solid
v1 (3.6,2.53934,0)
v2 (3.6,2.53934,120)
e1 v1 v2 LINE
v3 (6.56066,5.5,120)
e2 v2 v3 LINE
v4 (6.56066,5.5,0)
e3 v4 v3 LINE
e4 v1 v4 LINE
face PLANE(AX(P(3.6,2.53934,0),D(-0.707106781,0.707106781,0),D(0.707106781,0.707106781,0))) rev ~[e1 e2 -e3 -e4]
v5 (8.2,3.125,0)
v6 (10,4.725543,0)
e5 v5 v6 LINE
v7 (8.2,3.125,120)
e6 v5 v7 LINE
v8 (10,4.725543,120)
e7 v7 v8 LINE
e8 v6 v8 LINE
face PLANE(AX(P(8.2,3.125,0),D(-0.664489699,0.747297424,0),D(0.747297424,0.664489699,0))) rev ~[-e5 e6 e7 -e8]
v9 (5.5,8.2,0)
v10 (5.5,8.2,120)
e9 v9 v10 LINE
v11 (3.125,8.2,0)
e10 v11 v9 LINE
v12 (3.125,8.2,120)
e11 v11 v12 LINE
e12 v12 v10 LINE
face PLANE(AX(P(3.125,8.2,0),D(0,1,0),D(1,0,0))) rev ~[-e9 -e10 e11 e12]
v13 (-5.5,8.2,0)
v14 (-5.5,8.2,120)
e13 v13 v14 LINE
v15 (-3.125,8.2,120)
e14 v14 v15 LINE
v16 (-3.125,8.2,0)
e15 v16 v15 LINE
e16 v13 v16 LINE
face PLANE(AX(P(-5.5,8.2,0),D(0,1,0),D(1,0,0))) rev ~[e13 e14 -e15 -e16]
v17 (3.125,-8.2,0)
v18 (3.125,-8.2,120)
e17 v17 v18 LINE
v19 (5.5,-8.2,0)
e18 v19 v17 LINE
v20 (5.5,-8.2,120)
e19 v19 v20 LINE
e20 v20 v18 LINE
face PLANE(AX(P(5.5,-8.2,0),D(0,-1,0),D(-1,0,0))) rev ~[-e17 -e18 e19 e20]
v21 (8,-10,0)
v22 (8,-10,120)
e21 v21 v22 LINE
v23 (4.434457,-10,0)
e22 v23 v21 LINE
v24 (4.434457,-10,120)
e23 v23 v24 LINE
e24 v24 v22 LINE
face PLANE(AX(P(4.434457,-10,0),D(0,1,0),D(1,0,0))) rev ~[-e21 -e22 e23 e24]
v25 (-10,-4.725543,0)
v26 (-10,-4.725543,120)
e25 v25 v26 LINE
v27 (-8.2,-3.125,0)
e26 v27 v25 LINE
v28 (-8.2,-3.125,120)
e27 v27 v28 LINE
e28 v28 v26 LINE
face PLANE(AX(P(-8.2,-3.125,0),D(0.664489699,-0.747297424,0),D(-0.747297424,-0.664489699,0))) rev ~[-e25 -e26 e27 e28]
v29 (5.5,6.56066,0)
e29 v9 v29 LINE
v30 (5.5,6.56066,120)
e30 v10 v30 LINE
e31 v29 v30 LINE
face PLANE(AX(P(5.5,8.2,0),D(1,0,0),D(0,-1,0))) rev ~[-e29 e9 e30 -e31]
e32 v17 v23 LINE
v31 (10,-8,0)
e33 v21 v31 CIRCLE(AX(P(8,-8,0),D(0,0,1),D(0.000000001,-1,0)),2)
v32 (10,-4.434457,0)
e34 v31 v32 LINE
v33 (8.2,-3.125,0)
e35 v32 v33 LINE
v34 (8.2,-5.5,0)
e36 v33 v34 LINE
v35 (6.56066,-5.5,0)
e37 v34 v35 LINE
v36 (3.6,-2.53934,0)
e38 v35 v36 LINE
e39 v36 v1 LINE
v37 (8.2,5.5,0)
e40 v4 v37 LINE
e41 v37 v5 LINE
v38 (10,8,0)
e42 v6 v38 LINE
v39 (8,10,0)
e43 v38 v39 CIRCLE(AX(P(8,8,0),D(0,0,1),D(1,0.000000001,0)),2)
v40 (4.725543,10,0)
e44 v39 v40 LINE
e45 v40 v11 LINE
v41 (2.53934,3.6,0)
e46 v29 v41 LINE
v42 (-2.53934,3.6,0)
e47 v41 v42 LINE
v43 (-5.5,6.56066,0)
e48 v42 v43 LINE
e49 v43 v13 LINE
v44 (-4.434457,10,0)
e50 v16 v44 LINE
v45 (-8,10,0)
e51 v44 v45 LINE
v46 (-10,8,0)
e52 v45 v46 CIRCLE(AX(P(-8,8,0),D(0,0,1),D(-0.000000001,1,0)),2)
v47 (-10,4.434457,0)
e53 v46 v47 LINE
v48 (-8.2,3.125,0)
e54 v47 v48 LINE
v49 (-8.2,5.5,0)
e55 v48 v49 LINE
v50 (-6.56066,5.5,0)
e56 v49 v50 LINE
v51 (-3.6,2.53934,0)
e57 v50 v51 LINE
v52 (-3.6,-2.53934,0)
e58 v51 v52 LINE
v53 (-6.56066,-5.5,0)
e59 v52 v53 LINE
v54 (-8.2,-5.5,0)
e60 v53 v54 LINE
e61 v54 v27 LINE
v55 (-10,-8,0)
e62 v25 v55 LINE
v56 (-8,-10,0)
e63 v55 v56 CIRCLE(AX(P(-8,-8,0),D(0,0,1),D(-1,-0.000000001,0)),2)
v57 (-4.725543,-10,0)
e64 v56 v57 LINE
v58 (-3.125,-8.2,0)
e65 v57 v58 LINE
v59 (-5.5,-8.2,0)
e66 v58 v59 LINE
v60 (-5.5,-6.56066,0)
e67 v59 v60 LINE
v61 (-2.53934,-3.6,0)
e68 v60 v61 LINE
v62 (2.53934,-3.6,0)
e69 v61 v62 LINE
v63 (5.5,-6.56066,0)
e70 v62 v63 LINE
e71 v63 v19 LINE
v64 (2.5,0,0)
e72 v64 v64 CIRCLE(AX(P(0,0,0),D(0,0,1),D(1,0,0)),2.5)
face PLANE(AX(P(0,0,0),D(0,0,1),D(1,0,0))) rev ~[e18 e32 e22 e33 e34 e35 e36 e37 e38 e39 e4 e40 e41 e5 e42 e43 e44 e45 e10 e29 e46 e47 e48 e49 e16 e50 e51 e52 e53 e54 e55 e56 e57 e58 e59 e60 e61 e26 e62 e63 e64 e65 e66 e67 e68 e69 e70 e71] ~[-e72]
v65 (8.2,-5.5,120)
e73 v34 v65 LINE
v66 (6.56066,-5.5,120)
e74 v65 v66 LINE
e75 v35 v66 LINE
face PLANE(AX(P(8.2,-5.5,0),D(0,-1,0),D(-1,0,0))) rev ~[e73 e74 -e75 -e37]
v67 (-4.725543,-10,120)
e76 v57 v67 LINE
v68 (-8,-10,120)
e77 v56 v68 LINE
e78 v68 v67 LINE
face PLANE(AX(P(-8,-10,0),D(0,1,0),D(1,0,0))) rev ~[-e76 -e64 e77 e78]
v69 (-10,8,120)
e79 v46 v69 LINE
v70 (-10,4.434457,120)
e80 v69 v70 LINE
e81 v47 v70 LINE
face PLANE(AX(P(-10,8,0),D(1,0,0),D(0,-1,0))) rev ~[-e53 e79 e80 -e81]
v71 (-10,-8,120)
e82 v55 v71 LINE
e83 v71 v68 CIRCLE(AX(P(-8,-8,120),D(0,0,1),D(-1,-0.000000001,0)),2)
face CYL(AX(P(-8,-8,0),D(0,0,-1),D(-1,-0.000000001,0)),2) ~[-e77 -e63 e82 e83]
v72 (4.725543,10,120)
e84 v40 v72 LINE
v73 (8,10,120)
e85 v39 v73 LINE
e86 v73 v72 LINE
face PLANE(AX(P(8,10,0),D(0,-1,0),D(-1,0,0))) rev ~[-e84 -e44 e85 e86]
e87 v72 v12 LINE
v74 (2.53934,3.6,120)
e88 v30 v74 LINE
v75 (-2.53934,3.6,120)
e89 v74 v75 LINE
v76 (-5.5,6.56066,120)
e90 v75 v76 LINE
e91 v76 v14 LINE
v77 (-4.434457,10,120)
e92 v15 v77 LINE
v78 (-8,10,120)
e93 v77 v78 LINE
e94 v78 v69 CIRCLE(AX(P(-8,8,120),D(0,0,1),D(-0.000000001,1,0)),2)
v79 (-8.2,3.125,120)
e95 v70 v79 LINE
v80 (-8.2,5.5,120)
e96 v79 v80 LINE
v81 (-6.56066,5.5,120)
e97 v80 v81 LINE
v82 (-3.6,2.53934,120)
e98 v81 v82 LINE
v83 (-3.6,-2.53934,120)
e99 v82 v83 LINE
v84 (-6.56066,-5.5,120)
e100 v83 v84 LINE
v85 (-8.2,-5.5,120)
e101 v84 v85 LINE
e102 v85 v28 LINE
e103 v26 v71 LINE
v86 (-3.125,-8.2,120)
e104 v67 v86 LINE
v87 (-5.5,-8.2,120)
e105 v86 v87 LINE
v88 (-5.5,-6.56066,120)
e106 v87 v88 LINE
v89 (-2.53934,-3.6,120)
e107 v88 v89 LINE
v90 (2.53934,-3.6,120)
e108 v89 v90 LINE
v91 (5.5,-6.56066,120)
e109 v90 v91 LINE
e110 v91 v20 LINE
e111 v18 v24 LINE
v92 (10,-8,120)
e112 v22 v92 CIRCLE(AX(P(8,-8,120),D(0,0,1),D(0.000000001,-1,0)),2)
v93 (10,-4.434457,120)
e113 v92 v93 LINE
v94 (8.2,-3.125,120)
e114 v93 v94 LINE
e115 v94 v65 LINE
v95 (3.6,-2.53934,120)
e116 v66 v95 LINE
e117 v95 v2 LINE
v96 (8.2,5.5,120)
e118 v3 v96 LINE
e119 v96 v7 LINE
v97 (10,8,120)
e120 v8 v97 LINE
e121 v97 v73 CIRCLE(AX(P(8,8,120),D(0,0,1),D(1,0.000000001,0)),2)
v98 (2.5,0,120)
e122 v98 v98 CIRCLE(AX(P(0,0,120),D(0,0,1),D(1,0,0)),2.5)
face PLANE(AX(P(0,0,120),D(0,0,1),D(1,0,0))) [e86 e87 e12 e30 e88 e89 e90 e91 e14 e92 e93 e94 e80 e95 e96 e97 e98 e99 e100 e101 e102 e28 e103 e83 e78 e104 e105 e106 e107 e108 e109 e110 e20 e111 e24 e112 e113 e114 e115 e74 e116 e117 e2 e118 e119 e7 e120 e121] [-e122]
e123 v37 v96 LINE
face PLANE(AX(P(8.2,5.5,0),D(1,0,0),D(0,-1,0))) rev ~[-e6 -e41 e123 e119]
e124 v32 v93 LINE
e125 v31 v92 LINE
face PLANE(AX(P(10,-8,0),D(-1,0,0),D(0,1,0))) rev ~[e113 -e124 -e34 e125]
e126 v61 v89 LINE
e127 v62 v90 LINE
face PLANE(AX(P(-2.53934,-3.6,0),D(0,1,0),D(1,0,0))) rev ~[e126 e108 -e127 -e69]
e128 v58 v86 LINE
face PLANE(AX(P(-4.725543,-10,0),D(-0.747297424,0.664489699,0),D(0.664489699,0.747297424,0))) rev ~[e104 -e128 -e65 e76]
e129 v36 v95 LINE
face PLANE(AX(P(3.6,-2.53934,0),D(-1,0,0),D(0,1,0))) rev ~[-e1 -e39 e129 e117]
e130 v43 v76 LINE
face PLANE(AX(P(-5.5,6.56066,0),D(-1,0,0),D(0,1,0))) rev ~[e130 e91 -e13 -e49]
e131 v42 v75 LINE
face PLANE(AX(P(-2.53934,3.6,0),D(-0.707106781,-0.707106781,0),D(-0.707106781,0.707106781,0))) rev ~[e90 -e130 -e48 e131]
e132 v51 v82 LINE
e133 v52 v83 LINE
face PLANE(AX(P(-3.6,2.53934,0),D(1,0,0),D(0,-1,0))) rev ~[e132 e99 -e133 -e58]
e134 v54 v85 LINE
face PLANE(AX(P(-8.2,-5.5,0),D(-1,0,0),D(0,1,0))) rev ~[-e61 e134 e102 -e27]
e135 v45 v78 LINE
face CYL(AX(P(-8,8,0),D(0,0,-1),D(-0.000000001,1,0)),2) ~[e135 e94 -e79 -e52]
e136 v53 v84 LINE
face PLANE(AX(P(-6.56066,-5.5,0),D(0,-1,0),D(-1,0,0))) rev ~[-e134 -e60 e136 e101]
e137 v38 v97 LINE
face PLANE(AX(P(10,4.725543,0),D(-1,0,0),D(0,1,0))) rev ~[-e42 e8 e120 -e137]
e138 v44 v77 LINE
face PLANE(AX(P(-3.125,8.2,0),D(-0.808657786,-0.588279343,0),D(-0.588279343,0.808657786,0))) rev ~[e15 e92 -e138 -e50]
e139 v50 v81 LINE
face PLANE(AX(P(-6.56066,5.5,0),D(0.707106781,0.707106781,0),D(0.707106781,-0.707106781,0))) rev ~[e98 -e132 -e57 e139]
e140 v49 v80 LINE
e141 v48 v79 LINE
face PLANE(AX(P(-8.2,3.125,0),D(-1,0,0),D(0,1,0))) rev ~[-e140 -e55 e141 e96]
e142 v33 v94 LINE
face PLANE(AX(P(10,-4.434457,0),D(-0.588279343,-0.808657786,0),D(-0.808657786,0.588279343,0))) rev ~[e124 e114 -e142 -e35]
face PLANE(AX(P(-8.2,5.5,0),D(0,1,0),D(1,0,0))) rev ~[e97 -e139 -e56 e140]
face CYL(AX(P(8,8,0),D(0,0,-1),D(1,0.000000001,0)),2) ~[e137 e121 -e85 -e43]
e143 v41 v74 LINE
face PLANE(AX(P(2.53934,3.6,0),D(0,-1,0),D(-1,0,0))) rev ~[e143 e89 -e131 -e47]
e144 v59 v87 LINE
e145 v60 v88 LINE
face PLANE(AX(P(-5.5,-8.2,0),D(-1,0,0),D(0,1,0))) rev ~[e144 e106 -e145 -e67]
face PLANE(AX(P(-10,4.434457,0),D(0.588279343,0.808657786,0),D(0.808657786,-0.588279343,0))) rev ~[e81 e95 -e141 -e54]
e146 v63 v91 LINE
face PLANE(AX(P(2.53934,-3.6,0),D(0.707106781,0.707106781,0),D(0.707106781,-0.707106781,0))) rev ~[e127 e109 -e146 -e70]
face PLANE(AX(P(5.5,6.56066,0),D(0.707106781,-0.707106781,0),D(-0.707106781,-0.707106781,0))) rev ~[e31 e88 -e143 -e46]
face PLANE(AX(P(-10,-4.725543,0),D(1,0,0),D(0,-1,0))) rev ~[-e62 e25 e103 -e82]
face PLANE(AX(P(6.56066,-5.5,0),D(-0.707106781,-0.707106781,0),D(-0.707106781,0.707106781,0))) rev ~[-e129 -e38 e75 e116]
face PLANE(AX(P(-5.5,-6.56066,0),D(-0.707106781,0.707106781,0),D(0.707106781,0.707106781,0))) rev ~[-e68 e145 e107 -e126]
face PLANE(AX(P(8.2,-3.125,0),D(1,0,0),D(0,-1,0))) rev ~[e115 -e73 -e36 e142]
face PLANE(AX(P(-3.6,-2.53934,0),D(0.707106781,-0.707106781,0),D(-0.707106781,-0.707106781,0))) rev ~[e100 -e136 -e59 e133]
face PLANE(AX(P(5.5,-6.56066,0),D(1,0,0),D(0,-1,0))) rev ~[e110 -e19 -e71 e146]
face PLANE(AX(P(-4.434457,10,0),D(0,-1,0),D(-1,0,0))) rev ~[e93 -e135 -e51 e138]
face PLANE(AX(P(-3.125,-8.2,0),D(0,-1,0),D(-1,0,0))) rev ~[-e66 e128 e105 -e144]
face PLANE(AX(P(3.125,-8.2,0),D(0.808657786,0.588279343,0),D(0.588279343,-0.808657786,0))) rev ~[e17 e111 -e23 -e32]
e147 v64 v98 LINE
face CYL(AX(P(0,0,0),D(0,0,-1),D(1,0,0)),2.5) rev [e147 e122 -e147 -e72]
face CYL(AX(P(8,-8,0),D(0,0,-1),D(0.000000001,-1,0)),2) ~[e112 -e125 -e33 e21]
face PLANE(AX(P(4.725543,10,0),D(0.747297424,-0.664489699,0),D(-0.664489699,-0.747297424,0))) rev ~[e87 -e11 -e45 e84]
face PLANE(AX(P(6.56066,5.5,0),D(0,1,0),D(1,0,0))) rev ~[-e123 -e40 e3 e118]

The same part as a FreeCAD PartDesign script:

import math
import FreeCAD as App
import Part
import Sketcher
from FreeCAD import Vector
Q = App.Units.Quantity

doc = App.newDocument("Part")
body = doc.addObject("PartDesign::Body", "Body")

# Sketch on XY plane
sketch1 = body.newObject("Sketcher::SketchObject", "Sketch")
sketch1.AttachmentSupport = (doc.getObject("XY_Plane"), [""])
sketch1.MapMode = "FlatFace"
sketch1.addGeometry([
    Part.LineSegment(Vector(-4.7, -10, 0), Vector(-3.1, -8.2, 0)),  # 0
    Part.LineSegment(Vector(-3.1, -8.2, 0), Vector(-5.5, -8.2, 0)),  # 1
    Part.LineSegment(Vector(-5.5, -8.2, 0), Vector(-5.5, -6.6, 0)),  # 2
    Part.LineSegment(Vector(-5.5, -6.6, 0), Vector(-2.5, -3.6, 0)),  # 3
    Part.LineSegment(Vector(-2.5, -3.6, 0), Vector(2.5, -3.6, 0)),  # 4
    Part.LineSegment(Vector(2.5, -3.6, 0), Vector(5.5, -6.6, 0)),  # 5
    Part.LineSegment(Vector(5.5, -6.6, 0), Vector(5.5, -8.2, 0)),  # 6
    Part.LineSegment(Vector(5.5, -8.2, 0), Vector(3.1, -8.2, 0)),  # 7
    Part.LineSegment(Vector(3.1, -8.2, 0), Vector(4.4, -10, 0)),  # 8
    Part.LineSegment(Vector(4.4, -10, 0), Vector(8, -10, 0)),  # 9
    Part.ArcOfCircle(Part.Circle(Vector(8, -8, 0), Vector(0, 0, 1), 2), math.radians(-90), math.radians(0)),  # 10
    Part.LineSegment(Vector(10, -8, 0), Vector(10, -4.4, 0)),  # 11
    Part.LineSegment(Vector(10, -4.4, 0), Vector(8.2, -3.1, 0)),  # 12
    Part.LineSegment(Vector(8.2, -3.1, 0), Vector(8.2, -5.5, 0)),  # 13
    Part.LineSegment(Vector(8.2, -5.5, 0), Vector(6.6, -5.5, 0)),  # 14
    Part.LineSegment(Vector(6.6, -5.5, 0), Vector(3.6, -2.5, 0)),  # 15
    Part.LineSegment(Vector(3.6, -2.5, 0), Vector(3.6, 2.5, 0)),  # 16
    Part.LineSegment(Vector(3.6, 2.5, 0), Vector(6.6, 5.5, 0)),  # 17
    Part.LineSegment(Vector(6.6, 5.5, 0), Vector(8.2, 5.5, 0)),  # 18
    Part.LineSegment(Vector(8.2, 5.5, 0), Vector(8.2, 3.1, 0)),  # 19
    Part.LineSegment(Vector(8.2, 3.1, 0), Vector(10, 4.7, 0)),  # 20
    Part.LineSegment(Vector(10, 4.7, 0), Vector(10, 8, 0)),  # 21
    Part.ArcOfCircle(Part.Circle(Vector(8, 8, 0), Vector(0, 0, 1), 2), math.radians(0), math.radians(90)),  # 22
    Part.LineSegment(Vector(8, 10, 0), Vector(4.7, 10, 0)),  # 23
    Part.LineSegment(Vector(4.7, 10, 0), Vector(3.1, 8.2, 0)),  # 24
    Part.LineSegment(Vector(3.1, 8.2, 0), Vector(5.5, 8.2, 0)),  # 25
    Part.LineSegment(Vector(5.5, 8.2, 0), Vector(5.5, 6.6, 0)),  # 26
    Part.LineSegment(Vector(5.5, 6.6, 0), Vector(2.5, 3.6, 0)),  # 27
    Part.LineSegment(Vector(2.5, 3.6, 0), Vector(-2.5, 3.6, 0)),  # 28
    Part.LineSegment(Vector(-2.5, 3.6, 0), Vector(-5.5, 6.6, 0)),  # 29
    Part.LineSegment(Vector(-5.5, 6.6, 0), Vector(-5.5, 8.2, 0)),  # 30
    Part.LineSegment(Vector(-5.5, 8.2, 0), Vector(-3.1, 8.2, 0)),  # 31
    Part.LineSegment(Vector(-3.1, 8.2, 0), Vector(-4.4, 10, 0)),  # 32
    Part.LineSegment(Vector(-4.4, 10, 0), Vector(-8, 10, 0)),  # 33
    Part.ArcOfCircle(Part.Circle(Vector(-8, 8, 0), Vector(0, 0, 1), 2), math.radians(90), math.radians(180)),  # 34
    Part.LineSegment(Vector(-10, 8, 0), Vector(-10, 4.4, 0)),  # 35
    Part.LineSegment(Vector(-10, 4.4, 0), Vector(-8.2, 3.1, 0)),  # 36
    Part.LineSegment(Vector(-8.2, 3.1, 0), Vector(-8.2, 5.5, 0)),  # 37
    Part.LineSegment(Vector(-8.2, 5.5, 0), Vector(-6.6, 5.5, 0)),  # 38
    Part.LineSegment(Vector(-6.6, 5.5, 0), Vector(-3.6, 2.5, 0)),  # 39
    Part.LineSegment(Vector(-3.6, 2.5, 0), Vector(-3.6, -2.5, 0)),  # 40
    Part.LineSegment(Vector(-3.6, -2.5, 0), Vector(-6.6, -5.5, 0)),  # 41
    Part.LineSegment(Vector(-6.6, -5.5, 0), Vector(-8.2, -5.5, 0)),  # 42
    Part.LineSegment(Vector(-8.2, -5.5, 0), Vector(-8.2, -3.1, 0)),  # 43
    Part.LineSegment(Vector(-8.2, -3.1, 0), Vector(-10, -4.7, 0)),  # 44
    Part.LineSegment(Vector(-10, -4.7, 0), Vector(-10, -8, 0)),  # 45
    Part.ArcOfCircle(Part.Circle(Vector(-8, -8, 0), Vector(0, 0, 1), 2), math.radians(-180), math.radians(-90)),  # 46
    Part.LineSegment(Vector(-8, -10, 0), Vector(-4.7, -10, 0)),  # 47
    Part.Circle(Vector(0, 0, 0), Vector(0, 0, 1), 2.5),  # 48
], False)
sketch1.addConstraint([
    Sketcher.Constraint("Coincident", 0, 2, 1, 1),
    Sketcher.Constraint("Coincident", 1, 2, 2, 1),
    Sketcher.Constraint("Coincident", 2, 2, 3, 1),
    Sketcher.Constraint("Coincident", 3, 2, 4, 1),
    Sketcher.Constraint("Coincident", 4, 2, 5, 1),
    Sketcher.Constraint("Coincident", 5, 2, 6, 1),
    Sketcher.Constraint("Coincident", 6, 2, 7, 1),
    Sketcher.Constraint("Coincident", 7, 2, 8, 1),
    Sketcher.Constraint("Coincident", 8, 2, 9, 1),
    Sketcher.Constraint("Tangent", 9, 2, 10, 1),
    Sketcher.Constraint("Tangent", 10, 2, 11, 1),
    Sketcher.Constraint("Coincident", 11, 2, 12, 1),
    Sketcher.Constraint("Coincident", 12, 2, 13, 1),
    Sketcher.Constraint("Coincident", 13, 2, 14, 1),
    Sketcher.Constraint("Coincident", 14, 2, 15, 1),
    Sketcher.Constraint("Coincident", 15, 2, 16, 1),
    Sketcher.Constraint("Coincident", 16, 2, 17, 1),
    Sketcher.Constraint("Coincident", 17, 2, 18, 1),
    Sketcher.Constraint("Coincident", 18, 2, 19, 1),
    Sketcher.Constraint("Coincident", 19, 2, 20, 1),
    Sketcher.Constraint("Coincident", 20, 2, 21, 1),
    Sketcher.Constraint("Tangent", 21, 2, 22, 1),
    Sketcher.Constraint("Tangent", 22, 2, 23, 1),
    Sketcher.Constraint("Coincident", 23, 2, 24, 1),
    Sketcher.Constraint("Coincident", 24, 2, 25, 1),
    Sketcher.Constraint("Coincident", 25, 2, 26, 1),
    Sketcher.Constraint("Coincident", 26, 2, 27, 1),
    Sketcher.Constraint("Coincident", 27, 2, 28, 1),
    Sketcher.Constraint("Coincident", 28, 2, 29, 1),
    Sketcher.Constraint("Coincident", 29, 2, 30, 1),
    Sketcher.Constraint("Coincident", 30, 2, 31, 1),
    Sketcher.Constraint("Coincident", 31, 2, 32, 1),
    Sketcher.Constraint("Coincident", 32, 2, 33, 1),
    Sketcher.Constraint("Tangent", 33, 2, 34, 1),
    Sketcher.Constraint("Tangent", 34, 2, 35, 1),
    Sketcher.Constraint("Coincident", 35, 2, 36, 1),
    Sketcher.Constraint("Coincident", 36, 2, 37, 1),
    Sketcher.Constraint("Coincident", 37, 2, 38, 1),
    Sketcher.Constraint("Coincident", 38, 2, 39, 1),
    Sketcher.Constraint("Coincident", 39, 2, 40, 1),
    Sketcher.Constraint("Coincident", 40, 2, 41, 1),
    Sketcher.Constraint("Coincident", 41, 2, 42, 1),
    Sketcher.Constraint("Coincident", 42, 2, 43, 1),
    Sketcher.Constraint("Coincident", 43, 2, 44, 1),
    Sketcher.Constraint("Coincident", 44, 2, 45, 1),
    Sketcher.Constraint("Tangent", 45, 2, 46, 1),
    Sketcher.Constraint("Tangent", 46, 2, 47, 1),
    Sketcher.Constraint("Coincident", 47, 2, 0, 1),
    Sketcher.Constraint("Horizontal", 1),
    Sketcher.Constraint("Vertical", 2),
    Sketcher.Constraint("Horizontal", 4),
    Sketcher.Constraint("Vertical", 6),
    Sketcher.Constraint("Horizontal", 7),
    Sketcher.Constraint("Horizontal", 9),
    Sketcher.Constraint("Vertical", 11),
    Sketcher.Constraint("Vertical", 13),
    Sketcher.Constraint("Horizontal", 14),
    Sketcher.Constraint("Vertical", 16),
    Sketcher.Constraint("Horizontal", 18),
    Sketcher.Constraint("Vertical", 19),
    Sketcher.Constraint("Vertical", 21),
    Sketcher.Constraint("Horizontal", 23),
    Sketcher.Constraint("Horizontal", 25),
    Sketcher.Constraint("Vertical", 26),
    Sketcher.Constraint("Horizontal", 28),
    Sketcher.Constraint("Vertical", 30),
    Sketcher.Constraint("Horizontal", 31),
    Sketcher.Constraint("Horizontal", 33),
    Sketcher.Constraint("Vertical", 35),
    Sketcher.Constraint("Vertical", 37),
    Sketcher.Constraint("Horizontal", 38),
    Sketcher.Constraint("Vertical", 40),
    Sketcher.Constraint("Horizontal", 42),
    Sketcher.Constraint("Vertical", 43),
    Sketcher.Constraint("Vertical", 45),
    Sketcher.Constraint("Horizontal", 47),
    Sketcher.Constraint("Coincident", 48, 3, -1, 1),
    Sketcher.Constraint("Equal", 10, 22),
    Sketcher.Constraint("Equal", 22, 34),
    Sketcher.Constraint("Equal", 34, 46),
    Sketcher.Constraint("Symmetric", 10, 3, 34, 3, -1, 1),
    Sketcher.Constraint("Symmetric", 22, 3, 46, 3, -1, 1),
    Sketcher.Constraint("Symmetric", 0, 2, 24, 2, -1, 1),
    Sketcher.Constraint("Symmetric", 2, 2, 26, 2, -1, 1),
    Sketcher.Constraint("Symmetric", 3, 2, 27, 2, -1, 1),
    Sketcher.Constraint("Symmetric", 5, 2, 29, 2, -1, 1),
    Sketcher.Constraint("Symmetric", 7, 2, 31, 2, -1, 1),
    Sketcher.Constraint("Symmetric", 12, 2, 36, 2, -1, 1),
    Sketcher.Constraint("Symmetric", 14, 2, 38, 2, -1, 1),
    Sketcher.Constraint("Symmetric", 15, 2, 39, 2, -1, 1),
    Sketcher.Constraint("Symmetric", 17, 2, 41, 2, -1, 1),
    Sketcher.Constraint("Symmetric", 19, 2, 43, 2, -1, 1),
    Sketcher.Constraint("Symmetric", 22, 3, 34, 3, -2),
    Sketcher.Constraint("Symmetric", 2, 2, 5, 2, -2),
    Sketcher.Constraint("Symmetric", 0, 2, 7, 2, -2),
    Sketcher.Constraint("Symmetric", 19, 2, 36, 2, -2),
    Sketcher.Constraint("Symmetric", 17, 2, 38, 2, -2),
    Sketcher.Constraint("Perpendicular", 3, 5),
    Sketcher.Constraint("Parallel", 5, 15),
    Sketcher.Constraint("Perpendicular", 15, 17),
    Sketcher.Constraint("Parallel", 0, 24),
    Sketcher.Constraint("Perpendicular", 27, 29),
    Sketcher.Constraint("Parallel", 8, 32),
    Sketcher.Constraint("Parallel", 12, 36),
    Sketcher.Constraint("Perpendicular", 39, 41),
    Sketcher.Constraint("Parallel", 20, 44),
    Sketcher.Constraint("Horizontal", 16, 2, 39, 2),
    Sketcher.Constraint("Equal", 42, 2),
    Sketcher.Constraint("Equal", 33, 11),
    Sketcher.Constraint("Equal", 31, 13),
    Sketcher.Constraint("Equal", 28, 16),
    Sketcher.Constraint("Equal", 47, 21),
    Sketcher.Constraint("Equal", 8, 12),
    Sketcher.Constraint("Equal", 5, 15),
    Sketcher.Constraint("Equal", 0, 20),
    Sketcher.Constraint("Diameter", 48, Q("5 mm")),
    Sketcher.Constraint("Radius", 10, Q("2 mm")),
    Sketcher.Constraint("DistanceX", -1, 1, 10, 3, Q("8 mm")),
    Sketcher.Constraint("DistanceY", 0, 2, -1, 1, Q("8.2 mm")),
    Sketcher.Constraint("DistanceX", 1, 2, -1, 1, Q("5.5 mm")),
    Sketcher.Constraint("DistanceY", 3, 2, -1, 1, Q("3.6 mm")),
    Sketcher.Constraint("DistanceX", 1, 2, 1, 1, Q("2.375 mm")),
    Sketcher.Constraint("DistanceX", 4, 1, 4, 2, Q("5.07868 mm")),
    Sketcher.Constraint("Distance", 0, Q("2.40868 mm")),
    Sketcher.Constraint("Distance", 8, Q("2.225911 mm")),
])
pad1 = body.newObject("PartDesign::Pad", "Pad")
pad1.Profile = sketch1
pad1.Length = 120

doc.recompute()
